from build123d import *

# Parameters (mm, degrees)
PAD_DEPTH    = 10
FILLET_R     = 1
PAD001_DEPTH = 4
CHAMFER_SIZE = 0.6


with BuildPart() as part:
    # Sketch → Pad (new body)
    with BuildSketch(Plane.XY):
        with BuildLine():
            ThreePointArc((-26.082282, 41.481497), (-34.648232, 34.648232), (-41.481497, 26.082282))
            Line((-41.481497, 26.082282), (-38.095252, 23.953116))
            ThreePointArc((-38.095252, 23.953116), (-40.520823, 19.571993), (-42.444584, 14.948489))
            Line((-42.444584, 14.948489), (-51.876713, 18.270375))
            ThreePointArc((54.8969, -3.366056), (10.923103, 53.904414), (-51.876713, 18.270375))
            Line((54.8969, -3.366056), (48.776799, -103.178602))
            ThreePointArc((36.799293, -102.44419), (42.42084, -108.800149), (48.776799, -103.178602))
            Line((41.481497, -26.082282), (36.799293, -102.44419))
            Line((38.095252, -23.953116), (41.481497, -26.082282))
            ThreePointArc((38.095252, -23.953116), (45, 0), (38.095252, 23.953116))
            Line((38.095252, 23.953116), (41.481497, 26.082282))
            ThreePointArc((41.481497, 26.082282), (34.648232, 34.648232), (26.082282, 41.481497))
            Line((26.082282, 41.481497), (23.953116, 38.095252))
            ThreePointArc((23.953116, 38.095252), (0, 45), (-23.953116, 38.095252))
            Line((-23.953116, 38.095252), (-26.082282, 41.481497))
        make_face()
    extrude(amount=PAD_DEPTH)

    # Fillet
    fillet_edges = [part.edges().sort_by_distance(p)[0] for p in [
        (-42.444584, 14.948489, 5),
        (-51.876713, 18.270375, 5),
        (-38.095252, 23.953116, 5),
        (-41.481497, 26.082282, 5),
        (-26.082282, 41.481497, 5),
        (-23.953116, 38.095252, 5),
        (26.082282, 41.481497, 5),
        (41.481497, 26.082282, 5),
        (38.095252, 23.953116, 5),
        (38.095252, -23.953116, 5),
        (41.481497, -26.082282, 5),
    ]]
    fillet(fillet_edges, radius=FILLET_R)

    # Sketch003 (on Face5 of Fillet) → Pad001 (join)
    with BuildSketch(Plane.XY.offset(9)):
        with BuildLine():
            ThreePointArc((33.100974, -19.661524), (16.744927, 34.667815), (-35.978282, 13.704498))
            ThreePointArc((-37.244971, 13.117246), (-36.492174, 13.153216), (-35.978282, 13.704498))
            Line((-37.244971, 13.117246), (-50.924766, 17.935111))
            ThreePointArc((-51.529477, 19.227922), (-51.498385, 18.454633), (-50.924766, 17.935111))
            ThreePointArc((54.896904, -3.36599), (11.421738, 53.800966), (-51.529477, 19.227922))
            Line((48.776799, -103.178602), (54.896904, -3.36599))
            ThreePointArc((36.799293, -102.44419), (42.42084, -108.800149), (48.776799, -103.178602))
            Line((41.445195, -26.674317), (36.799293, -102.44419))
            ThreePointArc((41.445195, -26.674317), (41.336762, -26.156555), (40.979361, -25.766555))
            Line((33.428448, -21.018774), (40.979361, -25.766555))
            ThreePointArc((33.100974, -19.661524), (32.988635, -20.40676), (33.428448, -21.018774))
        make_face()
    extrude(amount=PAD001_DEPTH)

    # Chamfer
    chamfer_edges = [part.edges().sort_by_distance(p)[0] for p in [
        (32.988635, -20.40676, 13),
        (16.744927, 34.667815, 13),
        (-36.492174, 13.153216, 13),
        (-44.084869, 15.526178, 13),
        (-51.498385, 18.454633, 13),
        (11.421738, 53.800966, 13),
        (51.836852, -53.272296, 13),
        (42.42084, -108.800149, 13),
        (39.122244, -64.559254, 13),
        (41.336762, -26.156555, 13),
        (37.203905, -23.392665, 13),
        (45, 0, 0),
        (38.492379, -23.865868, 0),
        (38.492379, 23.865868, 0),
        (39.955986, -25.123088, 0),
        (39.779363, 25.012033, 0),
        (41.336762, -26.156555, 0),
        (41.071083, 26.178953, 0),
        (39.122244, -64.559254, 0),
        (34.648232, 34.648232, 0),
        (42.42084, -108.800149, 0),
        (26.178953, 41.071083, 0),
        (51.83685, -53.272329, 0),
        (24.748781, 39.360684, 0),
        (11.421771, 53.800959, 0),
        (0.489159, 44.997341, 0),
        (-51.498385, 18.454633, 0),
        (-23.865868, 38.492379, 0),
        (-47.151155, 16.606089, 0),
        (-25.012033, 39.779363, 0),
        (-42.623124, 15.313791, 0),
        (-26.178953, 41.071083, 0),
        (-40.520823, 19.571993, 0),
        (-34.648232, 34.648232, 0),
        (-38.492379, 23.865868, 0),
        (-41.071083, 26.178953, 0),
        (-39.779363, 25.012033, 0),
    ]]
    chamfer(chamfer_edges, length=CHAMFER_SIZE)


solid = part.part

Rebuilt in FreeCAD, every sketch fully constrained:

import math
import FreeCAD as App
import Part
import Sketcher

V = App.Vector
Q = App.Units.Quantity


def edges_at(feature, points):
    """Names of the edges that pass closest to the given points."""
    edges = feature.Shape.Edges
    near = lambda p: min(range(len(edges)), key=lambda i: edges[i].distToShape(Part.Vertex(*p))[0])
    return sorted({f"Edge{near(p) + 1}" for p in points})

doc = App.newDocument("Part")
params = doc.addObject("Spreadsheet::Sheet", "Params")
for row, (alias, value) in enumerate([
    ("sketch1_radius", "44.999999 mm"),
    ("sketch1_radius2", "6 mm"),
    ("sketch1_radius3", "55 mm"),
    ("sketch1_length", "4 mm"),
    ("sketch1_length2", "100 mm"),
    ("pad1_length", "10 mm"),
    ("fillet_radius", "1 mm"),
    ("sketch2_radius", "1 mm"),
    ("sketch2_radius2", "6 mm"),
    ("sketch2_radius3", "55 mm"),
    ("sketch2_radius4", "38.5 mm"),
    ("pad2_length", "4 mm"),
    ("chamfer_size", "0.6 mm"),
], start=1):
    params.set(f"A{row}", alias)
    params.set(f"B{row}", "=" + value)
    params.setAlias(f"B{row}", alias)

body = doc.addObject("PartDesign::Body", "Body")

# Sketch on XY plane
sketch1 = doc.addObject("Sketcher::SketchObject", "Sketch")
body.addObject(sketch1)
sketch1.AttachmentSupport = (doc.XY_Plane, [""])
sketch1.MapMode = "FlatFace"
sketch1.addGeometry([
    Part.ArcOfCircle(Part.Circle(V(0.000019, -0.000019, 0), V(0, 0, 1), 49.000027), math.radians(122.160418), math.radians(147.839582)),  # 0
    Part.LineSegment(V(-26.082282, 41.481497, 0), V(-23.953116, 38.095252, 0)),  # 1
    Part.ArcOfCircle(Part.Circle(V(0, 0.000001, 0), V(0, 0, 1), 44.999999), math.radians(57.839588), math.radians(122.160412)),  # 2
    Part.LineSegment(V(23.953116, 38.095252, 0), V(26.082282, 41.481497, 0)),  # 3
    Part.ArcOfCircle(Part.Circle(V(-0.000019, -0.000019, 0), V(0, 0, 1), 49.000027), math.radians(32.160418), math.radians(57.839582)),  # 4
    Part.LineSegment(V(41.481497, 26.082282, 0), V(38.095252, 23.953116, 0)),  # 5
    Part.ArcOfCircle(Part.Circle(V(0.000001, 0, 0), V(0, 0, 1), 44.999999), math.radians(-32.160412), math.radians(32.160412)),  # 6
    Part.LineSegment(V(38.095252, -23.953116, 0), V(41.481497, -26.082282, 0)),  # 7
    Part.LineSegment(V(41.481497, -26.082282, 0), V(36.799293, -102.44419, 0)),  # 8
    Part.ArcOfCircle(Part.Circle(V(42.788046, -102.811396, 0), V(0, 0, 1), 6), math.radians(176.491248), math.radians(356.491248)),  # 9
    Part.LineSegment(V(48.776799, -103.178602, 0), V(54.8969, -3.366056, 0)),  # 10
    Part.ArcOfCircle(Part.Circle(V(0, 0.000001, 0), V(0, 0, 1), 55), math.radians(-3.508754), math.radians(160.59833)),  # 11
    Part.LineSegment(V(-51.876713, 18.270375, 0), V(-42.444584, 14.948489, 0)),  # 12
    Part.ArcOfCircle(Part.Circle(V(0.000009, -0.000007, 0), V(0, 0, 1), 45.000011), math.radians(147.839588), math.radians(160.598325)),  # 13
    Part.LineSegment(V(-38.095252, 23.953116, 0), V(-41.481497, 26.082282, 0)),  # 14
], False)
sketch1.addConstraint([
    Sketcher.Constraint("Coincident", 0, 1, 1, 1),
    Sketcher.Constraint("Coincident", 1, 2, 2, 2),
    Sketcher.Constraint("Coincident", 2, 1, 3, 1),
    Sketcher.Constraint("Coincident", 3, 2, 4, 2),
    Sketcher.Constraint("Coincident", 4, 1, 5, 1),
    Sketcher.Constraint("Coincident", 5, 2, 6, 2),
    Sketcher.Constraint("Coincident", 6, 1, 7, 1),
    Sketcher.Constraint("Coincident", 7, 2, 8, 1),
    Sketcher.Constraint("Tangent", 8, 2, 9, 1),
    Sketcher.Constraint("Tangent", 9, 2, 10, 1),
    Sketcher.Constraint("Tangent", 10, 2, 11, 1),
    Sketcher.Constraint("Coincident", 11, 2, 12, 1),
    Sketcher.Constraint("Coincident", 12, 2, 13, 2),
    Sketcher.Constraint("Coincident", 13, 1, 14, 1),
    Sketcher.Constraint("Coincident", 14, 2, 0, 2),
    Sketcher.Constraint("Coincident", 2, 3, -1, 1),
    Sketcher.Constraint("Coincident", 6, 3, -1, 1),
    Sketcher.Constraint("Coincident", 11, 3, -1, 1),
    Sketcher.Constraint("Equal", 0, 4),
    Sketcher.Constraint("Equal", 2, 6),
    Sketcher.Constraint("Symmetric", 6, 1, 13, 1, -1, 1),
    Sketcher.Constraint("Symmetric", 7, 2, 14, 2, -1, 1),
    Sketcher.Constraint("Symmetric", 0, 3, 4, 3, -2),
    Sketcher.Constraint("Perpendicular", 1, 5),
    Sketcher.Constraint("Perpendicular", 3, 7),
    Sketcher.Constraint("Parallel", 8, 10),
    Sketcher.Constraint("Horizontal", 1, 2, 2, 1),
    Sketcher.Constraint("Horizontal", 0, 1, 3, 2),
    Sketcher.Constraint("Horizontal", 5, 2, 13, 1),
    Sketcher.Constraint("Equal", 3, 5),
    Sketcher.Constraint("Radius", 2, Q("44.999999 mm")),
    Sketcher.Constraint("Radius", 9, Q("6 mm")),
    Sketcher.Constraint("Radius", 11, Q("55 mm")),
    Sketcher.Constraint("Distance", 1, Q("4 mm")),
    Sketcher.Constraint("Distance", 10, Q("100 mm")),
    Sketcher.Constraint("Distance", 12, Q("9.999999 mm")),
    Sketcher.Constraint("Radius", 13, Q("45.000011 mm")),
    Sketcher.Constraint("Radius", 0, Q("49.000027 mm")),
    Sketcher.Constraint("DistanceX", -1, 1, 9, 2, Q("48.776799 mm")),
    Sketcher.Constraint("DistanceX", 12, 2, 0, 1, Q("16.362302 mm")),
    Sketcher.Constraint("DistanceY", -1, 1, 2, 1, Q("38.095252 mm")),
    Sketcher.Constraint("DistanceX", -1, 1, 3, 2, Q("26.082282 mm")),
    Sketcher.Constraint("DistanceX", 11, 2, 0, 1, Q("25.794431 mm")),
])
sketch1.setExpression("Constraints[30]", "Params.sketch1_radius")
sketch1.setExpression("Constraints[31]", "Params.sketch1_radius2")
sketch1.setExpression("Constraints[32]", "Params.sketch1_radius3")
sketch1.setExpression("Constraints[33]", "Params.sketch1_length")
sketch1.setExpression("Constraints[34]", "Params.sketch1_length2")
pad1 = doc.addObject("PartDesign::Pad", "Pad")
body.addObject(pad1)
pad1.Profile = sketch1
pad1.setExpression("Length", "Params.pad1_length")
doc.recompute()

fillet = doc.addObject("PartDesign::Fillet", "Fillet")
body.addObject(fillet)
fillet.Base = (pad1, edges_at(pad1, [
    (-42.445, 14.948, 5),
    (-51.877, 18.27, 5),
    (-38.095, 23.953, 5),
    (-41.481, 26.082, 5),
    (-26.082, 41.481, 5),
    (-23.953, 38.095, 5),
    (26.082, 41.481, 5),
    (41.481, 26.082, 5),
    (38.095, 23.953, 5),
    (38.095, -23.953, 5),
    (41.481, -26.082, 5),
]))
fillet.setExpression("Radius", "Params.fillet_radius")

# Sketch on XY plane
sketch2 = doc.addObject("Sketcher::SketchObject", "Sketch001")
body.addObject(sketch2)
sketch2.AttachmentSupport = (doc.XY_Plane, [""])
sketch2.MapMode = "FlatFace"
sketch2.AttachmentOffset = App.Placement(V(0, 0, 9), App.Rotation())
sketch2.addGeometry([
    Part.ArcOfCircle(Part.Circle(V(0, 0, 0), V(0, 0, 1), 38.5), math.radians(-30.709729), math.radians(159.147647)),  # 0
    Part.ArcOfCircle(Part.Circle(V(33.96074, -20.172213, 0), V(0, 0, 1), 1), math.radians(149.290297), math.radians(237.839556)),  # 1
    Part.LineSegment(V(33.428448, -21.018774, 0), V(40.979361, -25.766555, 0)),  # 2
    Part.ArcOfCircle(Part.Circle(V(40.447072, -26.613115, 0), V(0, 0, 1), 0.999998), math.radians(-3.508824), math.radians(57.83967)),  # 3
    Part.LineSegment(V(41.445195, -26.674317, 0), V(36.799293, -102.44419, 0)),  # 4
    Part.ArcOfCircle(Part.Circle(V(42.788046, -102.811396, 0), V(0, 0, 1), 6), math.radians(176.491248), math.radians(356.491248)),  # 5
    Part.LineSegment(V(48.776799, -103.178602, 0), V(54.896904, -3.36599, 0)),  # 6
    Part.ArcOfCircle(Part.Circle(V(0, 0.000001, 0), V(0, 0, 1), 55), math.radians(-3.508685), math.radians(159.537236)),  # 7
    Part.ArcOfCircle(Part.Circle(V(-50.59258, 18.878323, 0), V(0, 0, 1), 0.999998), math.radians(159.537149), math.radians(250.598438)),  # 8
    Part.LineSegment(V(-50.924766, 17.935111, 0), V(-37.244971, 13.117246, 0)),  # 9
    Part.ArcOfCircle(Part.Circle(V(-36.912781, 14.060456, 0), V(0, 0, 1), 0.999998), math.radians(-109.401773), math.radians(-20.852233)),  # 10
], False)
sketch2.addConstraint([
    Sketcher.Constraint("Coincident", 0, 1, 1, 1),
    Sketcher.Constraint("Coincident", 1, 2, 2, 1),
    Sketcher.Constraint("Coincident", 2, 2, 3, 2),
    Sketcher.Constraint("Coincident", 3, 1, 4, 1),
    Sketcher.Constraint("Coincident", 4, 2, 5, 1),
    Sketcher.Constraint("Coincident", 5, 2, 6, 1),
    Sketcher.Constraint("Coincident", 6, 2, 7, 1),
    Sketcher.Constraint("Coincident", 7, 2, 8, 1),
    Sketcher.Constraint("Coincident", 8, 2, 9, 1),
    Sketcher.Constraint("Coincident", 9, 2, 10, 1),
    Sketcher.Constraint("Coincident", 10, 2, 0, 2),
    Sketcher.Constraint("Coincident", 0, 3, -1, 1),
    Sketcher.Constraint("Coincident", 7, 3, -1, 1),
    Sketcher.Constraint("Radius", 1, Q("1 mm")),
    Sketcher.Constraint("Radius", 5, Q("6 mm")),
    Sketcher.Constraint("Radius", 7, Q("55 mm")),
    Sketcher.Constraint("Radius", 0, Q("38.5 mm")),
    Sketcher.Constraint("Radius", 3, Q("0.999998 mm")),
    Sketcher.Constraint("Radius", 8, Q("0.999998 mm")),
    Sketcher.Constraint("Radius", 10, Q("0.999998 mm")),
    Sketcher.Constraint("Distance", 9, Q("14.5034 mm")),
    Sketcher.Constraint("DistanceX", -1, 1, 5, 2, Q("48.776799 mm")),
    Sketcher.Constraint("DistanceY", 5, 2, -1, 1, Q("103.178602 mm")),
    Sketcher.Constraint("DistanceY", -1, 1, 10, 2, Q("13.704498 mm")),
    Sketcher.Constraint("DistanceX", 8, 3, 10, 3, Q("13.679798 mm")),
    Sketcher.Constraint("DistanceX", 0, 1, 3, 3, Q("7.346098 mm")),
    Sketcher.Constraint("DistanceX", 4, 2, 3, 1, Q("4.645902 mm")),
    Sketcher.Constraint("DistanceY", 8, 3, 7, 2, Q("0.349599 mm")),
    Sketcher.Constraint("DistanceX", 10, 3, 10, 2, Q("0.934499 mm")),
    Sketcher.Constraint("DistanceX", -1, 1, 1, 3, Q("33.96074 mm")),
    Sketcher.Constraint("DistanceX", -1, 1, 1, 2, Q("33.428448 mm")),
    Sketcher.Constraint("DistanceX", -1, 1, 2, 2, Q("40.979361 mm")),
    Sketcher.Constraint("DistanceY", 4, 2, -1, 1, Q("102.44419 mm")),
    Sketcher.Constraint("DistanceY", 6, 2, -1, 1, Q("3.36599 mm")),
    Sketcher.Constraint("DistanceY", -1, 1, 8, 2, Q("17.935111 mm")),
    Sketcher.Constraint("DistanceX", 1, 3, 3, 3, Q("6.486332 mm")),
    Sketcher.Constraint("DistanceY", 5, 3, 3, 3, Q("76.198281 mm")),
    Sketcher.Constraint("DistanceY", 5, 3, 8, 3, Q("121.689719 mm")),
])
sketch2.setExpression("Constraints[13]", "Params.sketch2_radius")
sketch2.setExpression("Constraints[14]", "Params.sketch2_radius2")
sketch2.setExpression("Constraints[15]", "Params.sketch2_radius3")
sketch2.setExpression("Constraints[16]", "Params.sketch2_radius4")
pad2 = doc.addObject("PartDesign::Pad", "Pad001")
body.addObject(pad2)
pad2.Profile = sketch2
pad2.setExpression("Length", "Params.pad2_length")
doc.recompute()

chamfer = doc.addObject("PartDesign::Chamfer", "Chamfer")
body.addObject(chamfer)
chamfer.Base = (pad2, edges_at(pad2, [
    (32.989, -20.407, 13),
    (16.745, 34.668, 13),
    (-36.492, 13.153, 13),
    (-44.085, 15.526, 13),
    (-51.498, 18.455, 13),
    (11.422, 53.801, 13),
    (51.837, -53.272, 13),
    (42.421, -108.8, 13),
    (39.122, -64.559, 13),
    (41.337, -26.157, 13),
    (37.204, -23.393, 13),
    (45, 0, 0),
    (38.492, -23.866, 0),
    (38.492, 23.866, 0),
    (39.956, -25.123, 0),
    (39.779, 25.012, 0),
    (41.337, -26.157, 0),
    (41.071, 26.179, 0),
    (39.122, -64.559, 0),
    (34.648, 34.648, 0),
    (42.421, -108.8, 0),
    (26.179, 41.071, 0),
    (51.837, -53.272, 0),
    (24.749, 39.361, 0),
    (11.422, 53.801, 0),
    (0.489, 44.997, 0),
    (-51.498, 18.455, 0),
    (-23.866, 38.492, 0),
    (-47.151, 16.606, 0),
    (-25.012, 39.779, 0),
    (-42.623, 15.314, 0),
    (-26.179, 41.071, 0),
    (-40.521, 19.572, 0),
    (-34.648, 34.648, 0),
    (-38.492, 23.866, 0),
    (-41.071, 26.179, 0),
    (-39.779, 25.012, 0),
]))
chamfer.setExpression("Size", "Params.chamfer_size")

doc.recompute()
